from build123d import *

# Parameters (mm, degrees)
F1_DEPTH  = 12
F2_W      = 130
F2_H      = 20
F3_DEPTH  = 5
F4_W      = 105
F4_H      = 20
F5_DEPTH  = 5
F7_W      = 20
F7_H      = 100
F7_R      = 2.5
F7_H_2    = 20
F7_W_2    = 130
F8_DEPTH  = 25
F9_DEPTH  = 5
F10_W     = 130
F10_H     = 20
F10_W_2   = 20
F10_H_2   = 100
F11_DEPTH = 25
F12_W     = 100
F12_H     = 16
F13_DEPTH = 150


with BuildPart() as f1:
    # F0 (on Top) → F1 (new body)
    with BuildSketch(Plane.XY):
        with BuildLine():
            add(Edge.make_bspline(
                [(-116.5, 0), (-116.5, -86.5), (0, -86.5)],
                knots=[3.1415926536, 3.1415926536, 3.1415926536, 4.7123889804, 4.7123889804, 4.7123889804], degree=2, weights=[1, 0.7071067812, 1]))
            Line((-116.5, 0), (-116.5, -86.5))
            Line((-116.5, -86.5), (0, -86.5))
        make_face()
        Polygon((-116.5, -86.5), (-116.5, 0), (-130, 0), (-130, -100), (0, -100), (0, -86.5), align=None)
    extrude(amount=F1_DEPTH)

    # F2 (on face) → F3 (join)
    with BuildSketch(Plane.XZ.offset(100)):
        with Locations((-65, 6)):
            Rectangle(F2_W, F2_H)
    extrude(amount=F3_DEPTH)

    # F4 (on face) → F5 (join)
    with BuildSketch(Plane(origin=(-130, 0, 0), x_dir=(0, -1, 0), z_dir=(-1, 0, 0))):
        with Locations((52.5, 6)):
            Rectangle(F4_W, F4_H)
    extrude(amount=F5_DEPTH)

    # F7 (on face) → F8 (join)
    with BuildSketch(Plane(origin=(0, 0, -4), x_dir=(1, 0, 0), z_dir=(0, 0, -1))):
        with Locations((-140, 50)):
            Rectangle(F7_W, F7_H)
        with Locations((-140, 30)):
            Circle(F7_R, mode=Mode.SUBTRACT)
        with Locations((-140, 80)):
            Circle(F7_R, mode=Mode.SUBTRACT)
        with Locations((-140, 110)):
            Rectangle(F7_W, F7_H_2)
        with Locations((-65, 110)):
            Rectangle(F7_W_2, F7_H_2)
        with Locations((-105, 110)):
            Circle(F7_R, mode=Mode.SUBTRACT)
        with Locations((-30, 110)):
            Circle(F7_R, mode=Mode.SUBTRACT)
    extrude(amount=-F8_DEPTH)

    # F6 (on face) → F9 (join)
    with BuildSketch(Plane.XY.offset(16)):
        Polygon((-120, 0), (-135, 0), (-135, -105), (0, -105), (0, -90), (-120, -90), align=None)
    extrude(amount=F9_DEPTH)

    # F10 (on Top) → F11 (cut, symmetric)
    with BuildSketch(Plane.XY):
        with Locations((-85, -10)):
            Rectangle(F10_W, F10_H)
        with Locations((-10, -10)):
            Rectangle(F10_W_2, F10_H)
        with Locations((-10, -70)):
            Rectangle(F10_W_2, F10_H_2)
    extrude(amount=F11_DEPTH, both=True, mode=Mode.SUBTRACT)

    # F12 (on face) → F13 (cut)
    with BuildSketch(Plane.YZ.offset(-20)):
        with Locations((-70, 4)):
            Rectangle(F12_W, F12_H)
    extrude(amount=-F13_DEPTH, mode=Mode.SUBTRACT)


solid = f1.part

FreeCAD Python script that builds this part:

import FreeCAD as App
import Part
import Sketcher

V = App.Vector

doc = App.newDocument("Part")
body = doc.addObject("PartDesign::Body", "Body")

sketch1 = body.newObject("Sketcher::SketchObject", "Sketch")
sketch1.AttachmentSupport = (doc.getObject("XY_Plane"), [""])
sketch1.MapMode = "FlatFace"
sketch1.addGeometry([
    Part.BSplineCurve([V(-116.5, 0, 0), V(-116.5, -86.5, 0), V(0, -86.5, 0)], [3, 3], [3.141592654, 4.71238898], False, 2, [1, 0.707106781, 1], False),
    Part.LineSegment(V(-116.5, 0, 0), V(-130, 0, 0)),
    Part.LineSegment(V(-130, 0, 0), V(-130, -100, 0)),
    Part.LineSegment(V(-130, -100, 0), V(0, -100, 0)),
    Part.LineSegment(V(0, -100, 0), V(0, -86.5, 0)),
], False)
sketch1.addConstraint([
    Sketcher.Constraint("Block", 0),
    Sketcher.Constraint("Coincident", 0, 1, 1, 1),
    Sketcher.Constraint("Coincident", 1, 2, 2, 1),
    Sketcher.Constraint("Coincident", 2, 2, 3, 1),
    Sketcher.Constraint("Coincident", 3, 2, 4, 1),
    Sketcher.Constraint("Coincident", 4, 2, 0, 2),
    Sketcher.Constraint("Horizontal", 1),
    Sketcher.Constraint("Vertical", 2),
    Sketcher.Constraint("Horizontal", 3),
    Sketcher.Constraint("Vertical", 4),
    Sketcher.Constraint("Equal", 1, 4),
    Sketcher.Constraint("DistanceX", 3, 1, 3, 2, 130.0),
])
pad1 = body.newObject("PartDesign::Pad", "Pad")
pad1.Profile = sketch1
pad1.Length = 12

sketch2 = body.newObject("Sketcher::SketchObject", "Sketch001")
sketch2.AttachmentSupport = (doc.getObject("XZ_Plane"), [""])
sketch2.MapMode = "FlatFace"
sketch2.AttachmentOffset = App.Placement(V(0, 0, 100), App.Rotation())
sketch2.addGeometry([
    Part.LineSegment(V(-130, 16, 0), V(-130, -4, 0)),
    Part.LineSegment(V(-130, -4, 0), V(0, -4, 0)),
    Part.LineSegment(V(0, -4, 0), V(0, 16, 0)),
    Part.LineSegment(V(0, 16, 0), V(-130, 16, 0)),
], False)
sketch2.addConstraint([
    Sketcher.Constraint("Coincident", 0, 2, 1, 1),
    Sketcher.Constraint("Coincident", 1, 2, 2, 1),
    Sketcher.Constraint("Coincident", 2, 2, 3, 1),
    Sketcher.Constraint("Coincident", 3, 2, 0, 1),
    Sketcher.Constraint("Vertical", 0),
    Sketcher.Constraint("Horizontal", 1),
    Sketcher.Constraint("Vertical", 2),
    Sketcher.Constraint("Horizontal", 3),
    Sketcher.Constraint("PointOnObject", 1, 2, -2),
    Sketcher.Constraint("DistanceX", 1, 1, 1, 2, 130.0),
    Sketcher.Constraint("DistanceY", 0, 2, 0, 1, 20.0),
    Sketcher.Constraint("DistanceY", 0, 2, -1, 1, 4.0),
])
pad2 = body.newObject("PartDesign::Pad", "Pad001")
pad2.Profile = sketch2
pad2.Length = 5

sketch3 = body.newObject("Sketcher::SketchObject", "Sketch002")
sketch3.AttachmentSupport = (doc.getObject("YZ_Plane"), [""])
sketch3.MapMode = "FlatFace"
sketch3.AttachmentOffset = App.Placement(V(0, 0, -130), App.Rotation())
sketch3.addGeometry([
    Part.LineSegment(V(0, 16, 0), V(0, -4, 0)),
    Part.LineSegment(V(0, -4, 0), V(-105, -4, 0)),
    Part.LineSegment(V(-105, -4, 0), V(-105, 16, 0)),
    Part.LineSegment(V(-105, 16, 0), V(0, 16, 0)),
], False)
sketch3.addConstraint([
    Sketcher.Constraint("Coincident", 0, 2, 1, 1),
    Sketcher.Constraint("Coincident", 1, 2, 2, 1),
    Sketcher.Constraint("Coincident", 2, 2, 3, 1),
    Sketcher.Constraint("Coincident", 3, 2, 0, 1),
    Sketcher.Constraint("Vertical", 0),
    Sketcher.Constraint("Horizontal", 1),
    Sketcher.Constraint("Vertical", 2),
    Sketcher.Constraint("Horizontal", 3),
    Sketcher.Constraint("PointOnObject", 0, 2, -2),
    Sketcher.Constraint("DistanceX", 1, 2, 1, 1, 105.0),
    Sketcher.Constraint("DistanceY", 0, 2, 0, 1, 20.0),
    Sketcher.Constraint("DistanceY", 0, 2, -1, 1, 4.0),
])
pad3 = body.newObject("PartDesign::Pad", "Pad002")
pad3.Profile = sketch3
pad3.Length = 5
pad3.Reversed = True

sketch4 = body.newObject("Sketcher::SketchObject", "Sketch003")
sketch4.AttachmentSupport = (doc.getObject("XY_Plane"), [""])
sketch4.MapMode = "FlatFace"
sketch4.AttachmentOffset = App.Placement(V(0, 0, -4), App.Rotation())
sketch4.addGeometry([
    Part.LineSegment(V(-150, 0, 0), V(-130, 0, 0)),
    Part.LineSegment(V(-130, 0, 0), V(-130, -100, 0)),
    Part.LineSegment(V(-130, -100, 0), V(0, -100, 0)),
    Part.LineSegment(V(0, -100, 0), V(0, -120, 0)),
    Part.LineSegment(V(0, -120, 0), V(-150, -120, 0)),
    Part.LineSegment(V(-150, -120, 0), V(-150, 0, 0)),
    Part.Circle(V(-140, -30, 0), V(0, 0, 1), 2.5),
    Part.Circle(V(-140, -80, 0), V(0, 0, 1), 2.5),
    Part.Circle(V(-105, -110, 0), V(0, 0, 1), 2.5),
    Part.Circle(V(-30, -110, 0), V(0, 0, 1), 2.5),
], False)
sketch4.addConstraint([
    Sketcher.Constraint("Coincident", 0, 2, 1, 1),
    Sketcher.Constraint("Coincident", 1, 2, 2, 1),
    Sketcher.Constraint("Coincident", 2, 2, 3, 1),
    Sketcher.Constraint("Coincident", 3, 2, 4, 1),
    Sketcher.Constraint("Coincident", 4, 2, 5, 1),
    Sketcher.Constraint("Coincident", 5, 2, 0, 1),
    Sketcher.Constraint("Horizontal", 0),
    Sketcher.Constraint("Vertical", 1),
    Sketcher.Constraint("Horizontal", 2),
    Sketcher.Constraint("Vertical", 3),
    Sketcher.Constraint("Horizontal", 4),
    Sketcher.Constraint("Vertical", 5),
    Sketcher.Constraint("Equal", 6, 7),
    Sketcher.Constraint("Equal", 7, 8),
    Sketcher.Constraint("Equal", 8, 9),
    Sketcher.Constraint("PointOnObject", 0, 2, -1),
    Sketcher.Constraint("PointOnObject", 2, 2, -2),
    Sketcher.Constraint("Horizontal", 8, 3, 9, 3),
    Sketcher.Constraint("Vertical", 6, 3, 7, 3),
    Sketcher.Constraint("Equal", 0, 3),
    Sketcher.Constraint("Diameter", 6, 5.0),
    Sketcher.Constraint("DistanceX", 0, 1, 0, 2, 20.0),
    Sketcher.Constraint("DistanceX", 2, 1, 2, 2, 130.0),
    Sketcher.Constraint("DistanceY", 1, 2, 1, 1, 100.0),
    Sketcher.Constraint("DistanceX", 6, 3, -1, 1, 140.0),
    Sketcher.Constraint("DistanceY", 6, 3, -1, 1, 30.0),
    Sketcher.Constraint("DistanceY", 7, 3, -1, 1, 80.0),
    Sketcher.Constraint("DistanceX", 8, 3, -1, 1, 105.0),
    Sketcher.Constraint("DistanceY", 8, 3, -1, 1, 110.0),
    Sketcher.Constraint("DistanceX", 9, 3, -1, 1, 30.0),
])
pad4 = body.newObject("PartDesign::Pad", "Pad003")
pad4.Profile = sketch4
pad4.Length = 25

sketch5 = body.newObject("Sketcher::SketchObject", "Sketch004")
sketch5.AttachmentSupport = (doc.getObject("XY_Plane"), [""])
sketch5.MapMode = "FlatFace"
sketch5.AttachmentOffset = App.Placement(V(0, 0, 16), App.Rotation())
sketch5.addGeometry([
    Part.LineSegment(V(-120, 0, 0), V(-135, 0, 0)),
    Part.LineSegment(V(-135, 0, 0), V(-135, -105, 0)),
    Part.LineSegment(V(-135, -105, 0), V(0, -105, 0)),
    Part.LineSegment(V(0, -105, 0), V(0, -90, 0)),
    Part.LineSegment(V(0, -90, 0), V(-120, -90, 0)),
    Part.LineSegment(V(-120, -90, 0), V(-120, 0, 0)),
], False)
sketch5.addConstraint([
    Sketcher.Constraint("Coincident", 0, 2, 1, 1),
    Sketcher.Constraint("Coincident", 1, 2, 2, 1),
    Sketcher.Constraint("Coincident", 2, 2, 3, 1),
    Sketcher.Constraint("Coincident", 3, 2, 4, 1),
    Sketcher.Constraint("Coincident", 4, 2, 5, 1),
    Sketcher.Constraint("Coincident", 5, 2, 0, 1),
    Sketcher.Constraint("Horizontal", 0),
    Sketcher.Constraint("Vertical", 1),
    Sketcher.Constraint("Horizontal", 2),
    Sketcher.Constraint("Vertical", 3),
    Sketcher.Constraint("Horizontal", 4),
    Sketcher.Constraint("Vertical", 5),
    Sketcher.Constraint("PointOnObject", 0, 2, -1),
    Sketcher.Constraint("PointOnObject", 2, 2, -2),
    Sketcher.Constraint("Equal", 0, 3),
    Sketcher.Constraint("DistanceX", 0, 2, 0, 1, 15.0),
    Sketcher.Constraint("DistanceX", 2, 1, 2, 2, 135.0),
    Sketcher.Constraint("DistanceY", 1, 2, 1, 1, 105.0),
])
pad5 = body.newObject("PartDesign::Pad", "Pad004")
pad5.Profile = sketch5
pad5.Length = 5

sketch6 = body.newObject("Sketcher::SketchObject", "Sketch005")
sketch6.AttachmentSupport = (doc.getObject("XY_Plane"), [""])
sketch6.MapMode = "FlatFace"
sketch6.addGeometry([
    Part.LineSegment(V(-150, 0, 0), V(-150, -20, 0)),
    Part.LineSegment(V(-150, -20, 0), V(-20, -20, 0)),
    Part.LineSegment(V(-20, -20, 0), V(-20, -120, 0)),
    Part.LineSegment(V(-20, -120, 0), V(0, -120, 0)),
    Part.LineSegment(V(0, -120, 0), V(0, 0, 0)),
    Part.LineSegment(V(0, 0, 0), V(-150, 0, 0)),
], False)
sketch6.addConstraint([
    Sketcher.Constraint("Coincident", 0, 2, 1, 1),
    Sketcher.Constraint("Coincident", 1, 2, 2, 1),
    Sketcher.Constraint("Coincident", 2, 2, 3, 1),
    Sketcher.Constraint("Coincident", 3, 2, 4, 1),
    Sketcher.Constraint("Coincident", 4, 2, 5, 1),
    Sketcher.Constraint("Coincident", 5, 2, 0, 1),
    Sketcher.Constraint("Vertical", 0),
    Sketcher.Constraint("Horizontal", 1),
    Sketcher.Constraint("Vertical", 2),
    Sketcher.Constraint("Horizontal", 3),
    Sketcher.Constraint("Vertical", 4),
    Sketcher.Constraint("Horizontal", 5),
    Sketcher.Constraint("Coincident", 4, 2, -1, 1),
    Sketcher.Constraint("Equal", 3, 0),
    Sketcher.Constraint("DistanceX", 1, 1, 1, 2, 130.0),
    Sketcher.Constraint("DistanceX", 3, 1, 3, 2, 20.0),
    Sketcher.Constraint("DistanceY", 2, 2, 2, 1, 100.0),
])
pocket1 = body.newObject("PartDesign::Pocket", "Pocket")
pocket1.Profile = sketch6
pocket1.Length = 50
pocket1.Midplane = True

sketch7 = body.newObject("Sketcher::SketchObject", "Sketch006")
sketch7.AttachmentSupport = (doc.getObject("YZ_Plane"), [""])
sketch7.MapMode = "FlatFace"
sketch7.AttachmentOffset = App.Placement(V(0, 0, -20), App.Rotation())
sketch7.addGeometry([
    Part.LineSegment(V(-120, 12, 0), V(-120, -4, 0)),
    Part.LineSegment(V(-120, -4, 0), V(-20, -4, 0)),
    Part.LineSegment(V(-20, -4, 0), V(-20, 12, 0)),
    Part.LineSegment(V(-20, 12, 0), V(-120, 12, 0)),
], False)
sketch7.addConstraint([
    Sketcher.Constraint("Coincident", 0, 2, 1, 1),
    Sketcher.Constraint("Coincident", 1, 2, 2, 1),
    Sketcher.Constraint("Coincident", 2, 2, 3, 1),
    Sketcher.Constraint("Coincident", 3, 2, 0, 1),
    Sketcher.Constraint("Vertical", 0),
    Sketcher.Constraint("Horizontal", 1),
    Sketcher.Constraint("Vertical", 2),
    Sketcher.Constraint("Horizontal", 3),
    Sketcher.Constraint("DistanceX", 1, 1, 1, 2, 100.0),
    Sketcher.Constraint("DistanceY", 0, 2, 0, 1, 16.0),
    Sketcher.Constraint("DistanceX", 0, 2, -1, 1, 120.0),
    Sketcher.Constraint("DistanceY", 0, 2, -1, 1, 4.0),
])
pocket2 = body.newObject("PartDesign::Pocket", "Pocket001")
pocket2.Profile = sketch7
pocket2.Length = 150

doc.recompute()
